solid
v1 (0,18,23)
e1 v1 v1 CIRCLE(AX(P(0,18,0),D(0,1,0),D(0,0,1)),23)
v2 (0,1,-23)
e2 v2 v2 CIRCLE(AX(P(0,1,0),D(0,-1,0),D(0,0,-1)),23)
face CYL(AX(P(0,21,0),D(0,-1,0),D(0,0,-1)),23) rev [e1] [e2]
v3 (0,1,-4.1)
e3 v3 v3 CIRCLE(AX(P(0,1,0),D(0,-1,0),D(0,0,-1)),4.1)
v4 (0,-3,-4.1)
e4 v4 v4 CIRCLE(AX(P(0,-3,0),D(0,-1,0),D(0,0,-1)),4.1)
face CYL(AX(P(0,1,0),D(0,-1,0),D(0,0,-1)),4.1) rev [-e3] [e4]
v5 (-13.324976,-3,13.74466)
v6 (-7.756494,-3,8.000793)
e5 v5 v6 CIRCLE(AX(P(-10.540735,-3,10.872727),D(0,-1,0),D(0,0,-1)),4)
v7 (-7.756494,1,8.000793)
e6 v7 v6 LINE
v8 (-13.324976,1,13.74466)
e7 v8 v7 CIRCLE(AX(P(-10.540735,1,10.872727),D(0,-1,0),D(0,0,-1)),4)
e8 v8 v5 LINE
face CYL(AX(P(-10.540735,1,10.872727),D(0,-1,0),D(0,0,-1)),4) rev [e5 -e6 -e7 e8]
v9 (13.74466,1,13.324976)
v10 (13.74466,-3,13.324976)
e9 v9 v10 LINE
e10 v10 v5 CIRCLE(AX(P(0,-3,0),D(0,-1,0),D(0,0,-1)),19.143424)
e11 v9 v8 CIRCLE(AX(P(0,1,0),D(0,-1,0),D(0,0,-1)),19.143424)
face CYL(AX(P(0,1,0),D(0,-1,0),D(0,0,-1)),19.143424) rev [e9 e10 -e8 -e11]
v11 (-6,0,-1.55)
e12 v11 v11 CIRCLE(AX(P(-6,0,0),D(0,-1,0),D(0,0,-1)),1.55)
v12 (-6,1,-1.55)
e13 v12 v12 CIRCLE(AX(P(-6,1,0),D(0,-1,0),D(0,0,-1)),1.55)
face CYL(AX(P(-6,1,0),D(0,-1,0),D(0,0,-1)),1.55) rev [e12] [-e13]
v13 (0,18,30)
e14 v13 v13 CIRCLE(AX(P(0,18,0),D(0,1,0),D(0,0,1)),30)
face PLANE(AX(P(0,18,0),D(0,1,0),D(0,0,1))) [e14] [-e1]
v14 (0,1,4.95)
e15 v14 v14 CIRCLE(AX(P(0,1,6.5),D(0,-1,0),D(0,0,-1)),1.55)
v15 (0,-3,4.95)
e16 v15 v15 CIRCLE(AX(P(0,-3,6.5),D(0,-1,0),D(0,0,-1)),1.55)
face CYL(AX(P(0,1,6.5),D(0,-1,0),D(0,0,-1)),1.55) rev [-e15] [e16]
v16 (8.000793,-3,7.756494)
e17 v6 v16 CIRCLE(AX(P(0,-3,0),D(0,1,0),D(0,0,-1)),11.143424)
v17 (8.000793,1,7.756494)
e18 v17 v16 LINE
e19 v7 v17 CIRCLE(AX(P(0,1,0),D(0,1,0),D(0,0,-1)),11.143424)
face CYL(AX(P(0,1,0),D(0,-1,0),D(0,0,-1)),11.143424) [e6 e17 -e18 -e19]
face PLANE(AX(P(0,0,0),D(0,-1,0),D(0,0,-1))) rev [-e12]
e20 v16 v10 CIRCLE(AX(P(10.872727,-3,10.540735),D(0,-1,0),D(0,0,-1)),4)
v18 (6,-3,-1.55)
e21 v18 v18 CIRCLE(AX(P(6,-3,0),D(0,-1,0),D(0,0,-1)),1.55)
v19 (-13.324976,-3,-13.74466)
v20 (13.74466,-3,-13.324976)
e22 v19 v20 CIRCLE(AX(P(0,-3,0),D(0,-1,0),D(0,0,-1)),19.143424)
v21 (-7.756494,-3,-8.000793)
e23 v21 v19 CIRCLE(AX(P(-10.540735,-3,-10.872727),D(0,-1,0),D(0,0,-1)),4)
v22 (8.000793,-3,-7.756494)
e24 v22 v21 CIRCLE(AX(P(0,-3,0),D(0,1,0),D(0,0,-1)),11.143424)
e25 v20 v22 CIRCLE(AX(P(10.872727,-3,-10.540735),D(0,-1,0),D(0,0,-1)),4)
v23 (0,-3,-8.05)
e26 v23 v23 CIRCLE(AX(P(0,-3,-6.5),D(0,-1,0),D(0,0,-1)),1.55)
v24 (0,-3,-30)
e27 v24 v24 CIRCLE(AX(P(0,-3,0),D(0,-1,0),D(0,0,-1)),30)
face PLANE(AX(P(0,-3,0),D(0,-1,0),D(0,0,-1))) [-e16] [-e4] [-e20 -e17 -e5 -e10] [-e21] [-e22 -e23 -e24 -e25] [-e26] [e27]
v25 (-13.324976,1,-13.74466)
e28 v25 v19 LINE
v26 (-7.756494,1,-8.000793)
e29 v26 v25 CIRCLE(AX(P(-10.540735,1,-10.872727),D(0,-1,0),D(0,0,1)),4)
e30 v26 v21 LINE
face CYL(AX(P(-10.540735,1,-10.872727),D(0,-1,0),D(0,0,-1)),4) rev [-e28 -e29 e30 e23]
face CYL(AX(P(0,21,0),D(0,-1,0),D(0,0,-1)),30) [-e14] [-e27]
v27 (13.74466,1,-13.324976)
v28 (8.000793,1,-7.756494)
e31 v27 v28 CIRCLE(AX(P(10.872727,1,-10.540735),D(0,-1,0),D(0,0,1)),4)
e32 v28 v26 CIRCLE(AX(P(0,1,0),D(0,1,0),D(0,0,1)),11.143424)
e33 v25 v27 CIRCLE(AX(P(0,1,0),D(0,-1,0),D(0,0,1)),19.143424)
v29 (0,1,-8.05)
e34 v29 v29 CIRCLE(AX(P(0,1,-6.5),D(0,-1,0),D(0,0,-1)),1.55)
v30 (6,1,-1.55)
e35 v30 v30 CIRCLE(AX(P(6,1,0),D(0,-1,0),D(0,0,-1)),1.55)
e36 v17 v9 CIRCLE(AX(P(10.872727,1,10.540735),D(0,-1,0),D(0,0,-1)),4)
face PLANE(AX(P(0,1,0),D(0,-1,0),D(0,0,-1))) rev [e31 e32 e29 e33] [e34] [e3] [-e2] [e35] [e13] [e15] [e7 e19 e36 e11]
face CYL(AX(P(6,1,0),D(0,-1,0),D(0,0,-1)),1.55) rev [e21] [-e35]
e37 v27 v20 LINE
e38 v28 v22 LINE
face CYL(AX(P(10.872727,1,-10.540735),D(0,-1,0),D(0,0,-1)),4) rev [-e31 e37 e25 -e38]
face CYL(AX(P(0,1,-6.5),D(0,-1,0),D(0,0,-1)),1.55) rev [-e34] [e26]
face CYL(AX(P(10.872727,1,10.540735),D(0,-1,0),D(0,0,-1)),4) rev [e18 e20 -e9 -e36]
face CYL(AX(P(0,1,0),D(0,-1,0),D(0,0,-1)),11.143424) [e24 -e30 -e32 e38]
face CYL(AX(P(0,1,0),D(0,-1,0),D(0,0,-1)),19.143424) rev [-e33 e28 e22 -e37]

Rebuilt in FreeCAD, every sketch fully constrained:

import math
import FreeCAD as App
import Part
import Sketcher
from FreeCAD import Vector
Q = App.Units.Quantity

doc = App.newDocument("Part")
body = doc.addObject("PartDesign::Body", "Body")

sketch1 = doc.addObject("Sketcher::SketchObject", "Sketch")
body.addObject(sketch1)
sketch1.AttachmentSupport = (doc.XZ_Plane, [""])
sketch1.MapMode = "FlatFace"
sketch1.addGeometry([
    Part.Circle(Vector(0, 0, 0), Vector(0, 0, 1), 30),
    Part.Circle(Vector(0, 0, 0), Vector(0, 0, 1), 23),
], False)
sketch1.addConstraint([
    Sketcher.Constraint("Coincident", 0, 3, -1, 1),
    Sketcher.Constraint("Coincident", 1, 3, -1, 1),
    Sketcher.Constraint("Diameter", 0, Q("60 mm")),
    Sketcher.Constraint("Diameter", 1, Q("46 mm")),
])
pad1 = doc.addObject("PartDesign::Pad", "Pad")
body.addObject(pad1)
pad1.Profile = sketch1
pad1.Length = 21
pad1.Reversed = True

sketch2 = doc.addObject("Sketcher::SketchObject", "Sketch001")
body.addObject(sketch2)
sketch2.AttachmentSupport = (doc.XZ_Plane, [""])
sketch2.MapMode = "FlatFace"
sketch2.addGeometry([
    Part.Circle(Vector(0, 0, 0), Vector(0, 0, 1), 23),
    Part.Circle(Vector(0, -6.5, 0), Vector(0, 0, 1), 1.55),
    Part.ArcOfCircle(Part.Circle(Vector(10.872727, -10.540735, 0), Vector(0, 0, 1), 4), math.radians(-44.111764), math.radians(135.888235)),
    Part.ArcOfCircle(Part.Circle(Vector(0, 0, 0), Vector(0, 0, 1), 19.143424), math.radians(-134.111765), math.radians(-44.111765)),
    Part.ArcOfCircle(Part.Circle(Vector(-10.540735, -10.872727, 0), Vector(0, 0, 1), 4), math.radians(45.888236), math.radians(225.888235)),
    Part.ArcOfCircle(Part.Circle(Vector(0, 0, 0), Vector(0, 0, 1), 11.143424), math.radians(-134.111764), math.radians(-44.111765)),
    Part.Circle(Vector(-6, 0, 0), Vector(0, 0, 1), 1.55),
    Part.Circle(Vector(0, 0, 0), Vector(0, 0, 1), 4.1),
    Part.Circle(Vector(0, 6.5, 0), Vector(0, 0, 1), 1.55),
    Part.Circle(Vector(6, 0, 0), Vector(0, 0, 1), 1.55),
    Part.ArcOfCircle(Part.Circle(Vector(0, 0, 0), Vector(0, 0, 1), 19.143424), math.radians(44.111765), math.radians(134.111765)),
    Part.ArcOfCircle(Part.Circle(Vector(10.872727, 10.540735, 0), Vector(0, 0, 1), 4), math.radians(-135.888235), math.radians(44.111764)),
    Part.ArcOfCircle(Part.Circle(Vector(0, 0, 0), Vector(0, 0, 1), 11.143424), math.radians(44.111765), math.radians(134.111764)),
    Part.ArcOfCircle(Part.Circle(Vector(-10.540735, 10.872727, 0), Vector(0, 0, 1), 4), math.radians(134.111765), math.radians(314.111764)),
], False)
sketch2.addConstraint([
    Sketcher.Constraint("Tangent", 2, 1, 3, 2),
    Sketcher.Constraint("Tangent", 3, 1, 4, 2),
    Sketcher.Constraint("Tangent", 4, 1, 5, 1),
    Sketcher.Constraint("Tangent", 5, 2, 2, 2),
    Sketcher.Constraint("Tangent", 10, 1, 11, 2),
    Sketcher.Constraint("Tangent", 11, 1, 12, 1),
    Sketcher.Constraint("Tangent", 12, 2, 13, 2),
    Sketcher.Constraint("Tangent", 13, 1, 10, 2),
    Sketcher.Constraint("Coincident", 0, 3, -1, 1),
    Sketcher.Constraint("Coincident", 3, 3, -1, 1),
    Sketcher.Constraint("Coincident", 5, 3, -1, 1),
    Sketcher.Constraint("Coincident", 7, 3, -1, 1),
    Sketcher.Constraint("Coincident", 10, 3, -1, 1),
    Sketcher.Constraint("Coincident", 12, 3, -1, 1),
    Sketcher.Constraint("Equal", 1, 6),
    Sketcher.Constraint("Equal", 6, 8),
    Sketcher.Constraint("Equal", 8, 9),
    Sketcher.Constraint("Equal", 3, 10),
    Sketcher.Constraint("Equal", 4, 11),
    Sketcher.Constraint("Symmetric", 1, 3, 8, 3, -1, 1),
    Sketcher.Constraint("Symmetric", 6, 3, 9, 3, -1, 1),
    Sketcher.Constraint("PointOnObject", 1, 3, -2),
    Sketcher.Constraint("PointOnObject", 6, 3, -1),
    Sketcher.Constraint("Vertical", 2, 3, 11, 3),
    Sketcher.Constraint("Vertical", 4, 3, 13, 3),
    Sketcher.Constraint("Diameter", 0, Q("46 mm")),
    Sketcher.Constraint("Radius", 2, Q("4 mm")),
    Sketcher.Constraint("Diameter", 1, Q("3.1 mm")),
    Sketcher.Constraint("Diameter", 7, Q("8.2 mm")),
    Sketcher.Constraint("DistanceX", 6, 3, -1, 1, Q("6 mm")),
    Sketcher.Constraint("DistanceY", 1, 3, -1, 1, Q("6.5 mm")),
    Sketcher.Constraint("Radius", 3, Q("19.143424 mm")),
    Sketcher.Constraint("DistanceX", -1, 1, 2, 1, Q("13.74466 mm")),
    Sketcher.Constraint("DistanceY", 3, 1, -1, 1, Q("13.74466 mm")),
])
pad2 = doc.addObject("PartDesign::Pad", "Pad001")
body.addObject(pad2)
pad2.Profile = sketch2
pad2.Length = 1
pad2.Reversed = True

sketch3 = doc.addObject("Sketcher::SketchObject", "Sketch002")
body.addObject(sketch3)
sketch3.AttachmentSupport = (doc.XZ_Plane, [""])
sketch3.MapMode = "FlatFace"
sketch3.addGeometry([
    Part.Circle(Vector(0, 0, 0), Vector(0, 0, 1), 30),
    Part.Circle(Vector(0, -6.5, 0), Vector(0, 0, 1), 1.55),
    Part.ArcOfCircle(Part.Circle(Vector(-10.540735, -10.872727, 0), Vector(0, 0, 1), 4), math.radians(45.888236), math.radians(225.888235)),
    Part.ArcOfCircle(Part.Circle(Vector(0, 0, 0), Vector(0, 0, 1), 11.143424), math.radians(-134.111764), math.radians(-44.111765)),
    Part.ArcOfCircle(Part.Circle(Vector(10.872727, -10.540735, 0), Vector(0, 0, 1), 4), math.radians(-44.111764), math.radians(135.888235)),
    Part.ArcOfCircle(Part.Circle(Vector(0, 0, 0), Vector(0, 0, 1), 19.143424), math.radians(-134.111765), math.radians(-44.111765)),
    Part.Circle(Vector(0, 0, 0), Vector(0, 0, 1), 4.1),
    Part.Circle(Vector(0, 6.5, 0), Vector(0, 0, 1), 1.55),
    Part.Circle(Vector(6, 0, 0), Vector(0, 0, 1), 1.55),
    Part.ArcOfCircle(Part.Circle(Vector(10.872727, 10.540735, 0), Vector(0, 0, 1), 4), math.radians(-135.888235), math.radians(44.111764)),
    Part.ArcOfCircle(Part.Circle(Vector(0, 0, 0), Vector(0, 0, 1), 11.143424), math.radians(44.111765), math.radians(134.111764)),
    Part.ArcOfCircle(Part.Circle(Vector(-10.540735, 10.872727, 0), Vector(0, 0, 1), 4), math.radians(134.111765), math.radians(314.111764)),
    Part.ArcOfCircle(Part.Circle(Vector(0, 0, 0), Vector(0, 0, 1), 19.143424), math.radians(44.111765), math.radians(134.111765)),
], False)
sketch3.addConstraint([
    Sketcher.Constraint("Tangent", 2, 1, 3, 1),
    Sketcher.Constraint("Tangent", 3, 2, 4, 2),
    Sketcher.Constraint("Tangent", 4, 1, 5, 2),
    Sketcher.Constraint("Tangent", 5, 1, 2, 2),
    Sketcher.Constraint("Tangent", 9, 1, 10, 1),
    Sketcher.Constraint("Tangent", 10, 2, 11, 2),
    Sketcher.Constraint("Tangent", 11, 1, 12, 2),
    Sketcher.Constraint("Tangent", 12, 1, 9, 2),
    Sketcher.Constraint("Coincident", 0, 3, -1, 1),
    Sketcher.Constraint("Coincident", 3, 3, -1, 1),
    Sketcher.Constraint("Coincident", 5, 3, -1, 1),
    Sketcher.Constraint("Coincident", 6, 3, -1, 1),
    Sketcher.Constraint("Coincident", 10, 3, -1, 1),
    Sketcher.Constraint("Coincident", 12, 3, -1, 1),
    Sketcher.Constraint("Equal", 1, 7),
    Sketcher.Constraint("Equal", 7, 8),
    Sketcher.Constraint("Equal", 4, 9),
    Sketcher.Constraint("Equal", 3, 10),
    Sketcher.Constraint("Symmetric", 1, 3, 7, 3, -1, 1),
    Sketcher.Constraint("PointOnObject", 1, 3, -2),
    Sketcher.Constraint("PointOnObject", 8, 3, -1),
    Sketcher.Constraint("Vertical", 4, 3, 9, 3),
    Sketcher.Constraint("Vertical", 2, 3, 11, 3),
    Sketcher.Constraint("Diameter", 0, Q("60 mm")),
    Sketcher.Constraint("Radius", 2, Q("4 mm")),
    Sketcher.Constraint("Diameter", 1, Q("3.1 mm")),
    Sketcher.Constraint("Diameter", 6, Q("8.2 mm")),
    Sketcher.Constraint("DistanceX", -1, 1, 8, 3, Q("6 mm")),
    Sketcher.Constraint("DistanceY", 1, 3, 7, 3, Q("13 mm")),
    Sketcher.Constraint("Radius", 3, Q("11.143424 mm")),
    Sketcher.Constraint("DistanceX", -1, 1, 4, 1, Q("13.74466 mm")),
    Sketcher.Constraint("DistanceY", 5, 1, -1, 1, Q("13.74466 mm")),
])
pad3 = doc.addObject("PartDesign::Pad", "Pad002")
body.addObject(pad3)
pad3.Profile = sketch3
pad3.Length = 3

sketch4 = doc.addObject("Sketcher::SketchObject", "Sketch003")
body.addObject(sketch4)
sketch4.AttachmentSupport = (doc.XZ_Plane, [""])
sketch4.MapMode = "FlatFace"
sketch4.AttachmentOffset = App.Placement(Vector(0, 0, -21), App.Rotation())
sketch4.addGeometry(Part.Circle(Vector(0, 0, 0), Vector(0, 0, 1), 30), False)
sketch4.addConstraint([
    Sketcher.Constraint("Coincident", 0, 3, -1, 1),
    Sketcher.Constraint("Diameter", 0, Q("60 mm")),
])
pocket1 = doc.addObject("PartDesign::Pocket", "Pocket")
body.addObject(pocket1)
pocket1.Profile = sketch4
pocket1.Length = 3
pocket1.Reversed = True

doc.recompute()
